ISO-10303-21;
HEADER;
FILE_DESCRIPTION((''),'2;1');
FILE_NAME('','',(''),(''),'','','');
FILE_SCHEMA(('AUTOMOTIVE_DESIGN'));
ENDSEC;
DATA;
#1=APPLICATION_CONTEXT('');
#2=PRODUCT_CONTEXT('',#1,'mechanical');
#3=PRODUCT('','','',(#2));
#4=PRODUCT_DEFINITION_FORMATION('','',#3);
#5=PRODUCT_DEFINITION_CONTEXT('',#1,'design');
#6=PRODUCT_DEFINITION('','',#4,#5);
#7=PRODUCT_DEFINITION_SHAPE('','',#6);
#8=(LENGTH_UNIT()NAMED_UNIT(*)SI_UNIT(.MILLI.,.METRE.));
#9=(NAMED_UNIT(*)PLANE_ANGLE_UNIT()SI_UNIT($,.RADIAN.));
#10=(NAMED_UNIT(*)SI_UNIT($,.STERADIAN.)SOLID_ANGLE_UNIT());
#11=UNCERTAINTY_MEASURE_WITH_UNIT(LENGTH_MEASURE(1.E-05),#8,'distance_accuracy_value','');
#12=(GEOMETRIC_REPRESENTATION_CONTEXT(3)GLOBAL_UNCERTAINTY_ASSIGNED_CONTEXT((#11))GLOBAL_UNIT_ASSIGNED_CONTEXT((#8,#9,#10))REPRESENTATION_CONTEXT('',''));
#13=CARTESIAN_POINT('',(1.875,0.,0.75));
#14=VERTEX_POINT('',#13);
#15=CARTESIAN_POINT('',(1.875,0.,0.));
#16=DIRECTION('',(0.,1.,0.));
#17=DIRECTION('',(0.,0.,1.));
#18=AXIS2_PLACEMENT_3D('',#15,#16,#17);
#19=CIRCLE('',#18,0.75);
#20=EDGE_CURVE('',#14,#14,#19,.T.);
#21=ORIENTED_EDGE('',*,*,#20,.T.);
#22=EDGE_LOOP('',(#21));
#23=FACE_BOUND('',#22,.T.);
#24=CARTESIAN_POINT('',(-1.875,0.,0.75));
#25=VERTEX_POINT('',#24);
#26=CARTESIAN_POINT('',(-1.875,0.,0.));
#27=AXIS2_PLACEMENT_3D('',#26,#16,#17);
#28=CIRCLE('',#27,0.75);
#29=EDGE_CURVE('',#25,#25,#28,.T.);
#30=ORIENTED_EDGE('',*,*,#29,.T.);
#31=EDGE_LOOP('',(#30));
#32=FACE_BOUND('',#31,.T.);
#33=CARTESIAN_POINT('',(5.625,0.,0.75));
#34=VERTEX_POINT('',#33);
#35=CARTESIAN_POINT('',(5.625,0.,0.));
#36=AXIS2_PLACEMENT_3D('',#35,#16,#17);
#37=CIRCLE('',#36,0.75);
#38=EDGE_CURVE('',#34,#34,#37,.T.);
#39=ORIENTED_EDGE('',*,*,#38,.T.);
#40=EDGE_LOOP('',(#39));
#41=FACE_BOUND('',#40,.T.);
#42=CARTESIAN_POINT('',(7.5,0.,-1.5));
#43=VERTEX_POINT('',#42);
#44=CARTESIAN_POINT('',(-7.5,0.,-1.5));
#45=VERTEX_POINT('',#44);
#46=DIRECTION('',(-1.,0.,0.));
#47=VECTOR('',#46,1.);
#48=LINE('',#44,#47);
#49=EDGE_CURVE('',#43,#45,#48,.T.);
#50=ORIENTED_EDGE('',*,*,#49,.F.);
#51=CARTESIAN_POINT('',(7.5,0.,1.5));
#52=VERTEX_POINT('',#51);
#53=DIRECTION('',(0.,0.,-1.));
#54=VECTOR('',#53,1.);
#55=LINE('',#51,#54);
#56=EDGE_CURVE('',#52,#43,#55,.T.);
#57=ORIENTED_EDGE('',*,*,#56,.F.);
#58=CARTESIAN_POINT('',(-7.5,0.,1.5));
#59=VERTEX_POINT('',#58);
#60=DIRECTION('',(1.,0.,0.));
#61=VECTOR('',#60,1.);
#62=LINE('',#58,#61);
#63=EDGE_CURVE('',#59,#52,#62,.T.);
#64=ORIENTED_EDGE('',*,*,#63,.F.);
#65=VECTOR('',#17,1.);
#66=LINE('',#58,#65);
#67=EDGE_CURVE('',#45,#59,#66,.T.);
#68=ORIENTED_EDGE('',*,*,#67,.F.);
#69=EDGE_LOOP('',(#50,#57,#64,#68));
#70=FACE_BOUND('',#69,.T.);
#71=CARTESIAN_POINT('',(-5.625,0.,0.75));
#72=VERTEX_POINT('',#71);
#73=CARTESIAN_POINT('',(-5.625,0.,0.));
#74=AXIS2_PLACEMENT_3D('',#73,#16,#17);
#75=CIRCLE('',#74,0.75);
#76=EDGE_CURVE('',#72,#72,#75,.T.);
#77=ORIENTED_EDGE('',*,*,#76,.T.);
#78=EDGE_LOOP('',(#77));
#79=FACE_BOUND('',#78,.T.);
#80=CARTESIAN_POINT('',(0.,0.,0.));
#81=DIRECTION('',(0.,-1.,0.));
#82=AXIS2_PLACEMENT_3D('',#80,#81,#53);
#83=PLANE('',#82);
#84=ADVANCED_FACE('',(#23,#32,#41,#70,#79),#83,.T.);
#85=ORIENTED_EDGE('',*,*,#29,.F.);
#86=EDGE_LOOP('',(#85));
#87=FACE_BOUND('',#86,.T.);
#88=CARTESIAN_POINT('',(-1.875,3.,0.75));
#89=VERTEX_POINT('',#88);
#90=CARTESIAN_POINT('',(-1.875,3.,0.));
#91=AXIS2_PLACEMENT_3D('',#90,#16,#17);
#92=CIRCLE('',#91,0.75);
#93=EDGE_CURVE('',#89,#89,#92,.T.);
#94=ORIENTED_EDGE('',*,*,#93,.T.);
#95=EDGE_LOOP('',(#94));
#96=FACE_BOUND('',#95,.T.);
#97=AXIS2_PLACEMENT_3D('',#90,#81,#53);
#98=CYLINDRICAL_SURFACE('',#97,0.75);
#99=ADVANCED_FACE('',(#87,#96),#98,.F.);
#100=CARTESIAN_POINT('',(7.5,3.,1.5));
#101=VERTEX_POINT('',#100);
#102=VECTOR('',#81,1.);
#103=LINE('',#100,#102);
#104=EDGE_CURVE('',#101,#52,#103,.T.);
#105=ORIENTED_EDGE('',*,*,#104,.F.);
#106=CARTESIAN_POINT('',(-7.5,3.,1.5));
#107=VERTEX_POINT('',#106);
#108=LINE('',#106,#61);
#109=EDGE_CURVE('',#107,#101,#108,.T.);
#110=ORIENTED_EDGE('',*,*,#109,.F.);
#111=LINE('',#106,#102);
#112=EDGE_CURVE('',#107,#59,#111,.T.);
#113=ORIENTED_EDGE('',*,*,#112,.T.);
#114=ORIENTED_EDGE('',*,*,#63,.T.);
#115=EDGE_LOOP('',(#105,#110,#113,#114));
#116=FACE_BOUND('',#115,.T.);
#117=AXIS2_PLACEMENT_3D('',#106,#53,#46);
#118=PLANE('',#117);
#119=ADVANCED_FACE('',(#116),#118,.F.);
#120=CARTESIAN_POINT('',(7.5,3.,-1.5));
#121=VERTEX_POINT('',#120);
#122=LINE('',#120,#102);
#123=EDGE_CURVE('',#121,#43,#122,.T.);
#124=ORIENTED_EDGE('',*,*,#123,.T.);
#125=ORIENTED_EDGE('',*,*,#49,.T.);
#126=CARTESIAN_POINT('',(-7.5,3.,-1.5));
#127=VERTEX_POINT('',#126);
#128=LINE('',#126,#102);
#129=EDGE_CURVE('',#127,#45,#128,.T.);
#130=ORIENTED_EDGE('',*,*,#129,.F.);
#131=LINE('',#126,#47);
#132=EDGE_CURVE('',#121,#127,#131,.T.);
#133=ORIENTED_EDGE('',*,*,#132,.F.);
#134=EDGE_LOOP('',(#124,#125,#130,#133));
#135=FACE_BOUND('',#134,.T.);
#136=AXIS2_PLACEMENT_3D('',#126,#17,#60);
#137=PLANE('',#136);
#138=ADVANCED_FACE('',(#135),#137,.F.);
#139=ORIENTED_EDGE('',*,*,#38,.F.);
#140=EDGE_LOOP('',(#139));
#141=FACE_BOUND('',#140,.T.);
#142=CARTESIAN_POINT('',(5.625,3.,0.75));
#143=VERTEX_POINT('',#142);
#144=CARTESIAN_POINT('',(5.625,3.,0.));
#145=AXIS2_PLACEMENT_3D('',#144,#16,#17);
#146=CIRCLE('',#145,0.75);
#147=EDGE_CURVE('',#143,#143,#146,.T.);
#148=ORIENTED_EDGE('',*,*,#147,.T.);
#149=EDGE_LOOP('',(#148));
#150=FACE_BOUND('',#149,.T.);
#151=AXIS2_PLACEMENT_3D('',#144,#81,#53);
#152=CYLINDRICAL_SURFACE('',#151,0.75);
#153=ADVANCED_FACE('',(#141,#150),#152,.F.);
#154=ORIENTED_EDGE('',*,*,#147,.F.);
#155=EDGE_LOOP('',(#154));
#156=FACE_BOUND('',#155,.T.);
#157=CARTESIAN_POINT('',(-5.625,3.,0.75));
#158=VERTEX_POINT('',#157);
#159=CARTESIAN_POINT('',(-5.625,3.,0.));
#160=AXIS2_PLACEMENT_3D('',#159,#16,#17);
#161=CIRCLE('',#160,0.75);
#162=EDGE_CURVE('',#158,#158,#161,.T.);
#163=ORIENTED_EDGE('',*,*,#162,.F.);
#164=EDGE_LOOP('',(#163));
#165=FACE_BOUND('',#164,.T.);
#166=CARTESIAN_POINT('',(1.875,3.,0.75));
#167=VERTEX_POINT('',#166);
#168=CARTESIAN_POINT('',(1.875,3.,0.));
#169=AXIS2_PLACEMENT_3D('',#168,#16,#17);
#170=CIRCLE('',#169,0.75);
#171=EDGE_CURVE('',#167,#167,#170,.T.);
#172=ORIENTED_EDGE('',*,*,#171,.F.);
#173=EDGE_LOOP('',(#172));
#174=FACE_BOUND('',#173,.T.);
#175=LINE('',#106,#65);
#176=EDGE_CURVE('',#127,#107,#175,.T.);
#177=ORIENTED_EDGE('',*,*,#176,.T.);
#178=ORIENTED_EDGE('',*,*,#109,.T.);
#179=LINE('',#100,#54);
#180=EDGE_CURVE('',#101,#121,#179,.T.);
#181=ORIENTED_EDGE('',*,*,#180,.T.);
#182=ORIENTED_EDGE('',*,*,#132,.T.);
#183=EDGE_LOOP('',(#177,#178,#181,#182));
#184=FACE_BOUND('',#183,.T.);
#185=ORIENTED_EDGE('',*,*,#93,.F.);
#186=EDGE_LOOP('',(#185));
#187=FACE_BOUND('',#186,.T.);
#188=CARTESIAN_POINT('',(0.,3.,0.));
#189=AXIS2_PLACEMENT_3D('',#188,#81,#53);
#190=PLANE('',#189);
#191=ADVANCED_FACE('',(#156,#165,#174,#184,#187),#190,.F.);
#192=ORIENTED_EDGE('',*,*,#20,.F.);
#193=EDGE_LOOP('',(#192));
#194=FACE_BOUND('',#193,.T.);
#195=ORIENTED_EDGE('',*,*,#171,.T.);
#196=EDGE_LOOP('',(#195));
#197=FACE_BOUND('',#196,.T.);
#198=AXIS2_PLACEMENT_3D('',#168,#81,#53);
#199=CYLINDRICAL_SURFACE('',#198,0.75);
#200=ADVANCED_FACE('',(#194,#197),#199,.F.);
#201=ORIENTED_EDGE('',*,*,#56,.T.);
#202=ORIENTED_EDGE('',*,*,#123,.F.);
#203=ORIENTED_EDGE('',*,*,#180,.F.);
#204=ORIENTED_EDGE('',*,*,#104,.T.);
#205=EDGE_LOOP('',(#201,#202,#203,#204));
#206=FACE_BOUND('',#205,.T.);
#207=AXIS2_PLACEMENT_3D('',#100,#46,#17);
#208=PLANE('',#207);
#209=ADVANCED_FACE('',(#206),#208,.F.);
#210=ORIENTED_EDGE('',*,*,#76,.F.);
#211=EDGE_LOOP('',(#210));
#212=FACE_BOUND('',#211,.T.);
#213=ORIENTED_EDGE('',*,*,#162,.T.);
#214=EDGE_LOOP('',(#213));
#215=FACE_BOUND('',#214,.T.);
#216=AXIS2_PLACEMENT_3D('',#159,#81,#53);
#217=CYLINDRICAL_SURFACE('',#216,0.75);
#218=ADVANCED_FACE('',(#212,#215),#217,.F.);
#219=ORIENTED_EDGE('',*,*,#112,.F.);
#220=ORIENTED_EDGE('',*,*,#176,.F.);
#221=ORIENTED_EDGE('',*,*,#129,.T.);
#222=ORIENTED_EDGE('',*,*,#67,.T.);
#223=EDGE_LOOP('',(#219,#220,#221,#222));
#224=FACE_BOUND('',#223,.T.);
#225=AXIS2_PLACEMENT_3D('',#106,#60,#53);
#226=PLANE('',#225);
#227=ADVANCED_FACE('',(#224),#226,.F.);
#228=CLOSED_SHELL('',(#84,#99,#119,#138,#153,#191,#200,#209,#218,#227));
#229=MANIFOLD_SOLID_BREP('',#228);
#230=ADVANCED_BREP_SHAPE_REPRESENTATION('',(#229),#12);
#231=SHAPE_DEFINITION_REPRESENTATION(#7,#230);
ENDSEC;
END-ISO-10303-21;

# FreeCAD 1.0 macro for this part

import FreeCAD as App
import Part
import Sketcher
Q = App.Units.Quantity


def add_polygon(sketch, points):
    """Adds a closed chain of lines whose ends are joined by coincident constraints."""
    first, n = sketch.GeometryCount, len(points)
    for a, b in zip(points, points[1:] + points[:1]):
        sketch.addGeometry(Part.LineSegment(App.Vector(*a, 0), App.Vector(*b, 0)), False)
    for i in range(n):
        sketch.addConstraint(Sketcher.Constraint("Coincident", first + i, 2, first + (i + 1) % n, 1))

doc = App.newDocument("Part")
body = doc.addObject("PartDesign::Body", "Body")

# Sketch on XZ plane
sketch1 = body.newObject("Sketcher::SketchObject", "Sketch")
sketch1.AttachmentSupport = (doc.getObject("XZ_Plane"), [""])
sketch1.MapMode = "FlatFace"
add_polygon(sketch1, [(-7.5, -1.5), (-7.5, 1.5), (7.5, 1.5), (7.5, -1.5)])  # lines 0-3
sketch1.addGeometry(Part.Circle(App.Vector(-5.6, 0, 0), App.Vector(0, 0, 1), 0.8), False)  # 4
sketch1.addGeometry(Part.Circle(App.Vector(-1.9, 0, 0), App.Vector(0, 0, 1), 0.8), False)  # 5
sketch1.addGeometry(Part.Circle(App.Vector(1.9, 0, 0), App.Vector(0, 0, 1), 0.8), False)  # 6
sketch1.addGeometry(Part.Circle(App.Vector(5.6, 0, 0), App.Vector(0, 0, 1), 0.8), False)  # 7
sketch1.addConstraint([
    Sketcher.Constraint("Vertical", 0),
    Sketcher.Constraint("Horizontal", 1),
    Sketcher.Constraint("Vertical", 2),
    Sketcher.Constraint("Horizontal", 3),
    Sketcher.Constraint("Equal", 4, 5),
    Sketcher.Constraint("Equal", 5, 6),
    Sketcher.Constraint("Equal", 6, 7),
    Sketcher.Constraint("Symmetric", 5, 3, 6, 3, -1, 1),
    Sketcher.Constraint("Symmetric", 4, 3, 7, 3, -1, 1),
    Sketcher.Constraint("Symmetric", 0, 2, 2, 2, -1, 1),
    Sketcher.Constraint("PointOnObject", 4, 3, -1),
    Sketcher.Constraint("PointOnObject", 5, 3, -1),
    Sketcher.Constraint("Diameter", 4, Q("1.5 mm")),
    Sketcher.Constraint("DistanceX", 1, 1, 1, 2, Q("15 mm")),
    Sketcher.Constraint("DistanceY", 0, 1, 0, 2, Q("3 mm")),
    Sketcher.Constraint("DistanceX", 4, 3, 6, 3, Q("7.5 mm")),
    Sketcher.Constraint("DistanceX", 4, 3, 5, 3, Q("3.75 mm")),
])
pad1 = body.newObject("PartDesign::Pad", "Pad")
pad1.Profile = sketch1
pad1.Length = 3
pad1.Reversed = True

doc.recompute()
